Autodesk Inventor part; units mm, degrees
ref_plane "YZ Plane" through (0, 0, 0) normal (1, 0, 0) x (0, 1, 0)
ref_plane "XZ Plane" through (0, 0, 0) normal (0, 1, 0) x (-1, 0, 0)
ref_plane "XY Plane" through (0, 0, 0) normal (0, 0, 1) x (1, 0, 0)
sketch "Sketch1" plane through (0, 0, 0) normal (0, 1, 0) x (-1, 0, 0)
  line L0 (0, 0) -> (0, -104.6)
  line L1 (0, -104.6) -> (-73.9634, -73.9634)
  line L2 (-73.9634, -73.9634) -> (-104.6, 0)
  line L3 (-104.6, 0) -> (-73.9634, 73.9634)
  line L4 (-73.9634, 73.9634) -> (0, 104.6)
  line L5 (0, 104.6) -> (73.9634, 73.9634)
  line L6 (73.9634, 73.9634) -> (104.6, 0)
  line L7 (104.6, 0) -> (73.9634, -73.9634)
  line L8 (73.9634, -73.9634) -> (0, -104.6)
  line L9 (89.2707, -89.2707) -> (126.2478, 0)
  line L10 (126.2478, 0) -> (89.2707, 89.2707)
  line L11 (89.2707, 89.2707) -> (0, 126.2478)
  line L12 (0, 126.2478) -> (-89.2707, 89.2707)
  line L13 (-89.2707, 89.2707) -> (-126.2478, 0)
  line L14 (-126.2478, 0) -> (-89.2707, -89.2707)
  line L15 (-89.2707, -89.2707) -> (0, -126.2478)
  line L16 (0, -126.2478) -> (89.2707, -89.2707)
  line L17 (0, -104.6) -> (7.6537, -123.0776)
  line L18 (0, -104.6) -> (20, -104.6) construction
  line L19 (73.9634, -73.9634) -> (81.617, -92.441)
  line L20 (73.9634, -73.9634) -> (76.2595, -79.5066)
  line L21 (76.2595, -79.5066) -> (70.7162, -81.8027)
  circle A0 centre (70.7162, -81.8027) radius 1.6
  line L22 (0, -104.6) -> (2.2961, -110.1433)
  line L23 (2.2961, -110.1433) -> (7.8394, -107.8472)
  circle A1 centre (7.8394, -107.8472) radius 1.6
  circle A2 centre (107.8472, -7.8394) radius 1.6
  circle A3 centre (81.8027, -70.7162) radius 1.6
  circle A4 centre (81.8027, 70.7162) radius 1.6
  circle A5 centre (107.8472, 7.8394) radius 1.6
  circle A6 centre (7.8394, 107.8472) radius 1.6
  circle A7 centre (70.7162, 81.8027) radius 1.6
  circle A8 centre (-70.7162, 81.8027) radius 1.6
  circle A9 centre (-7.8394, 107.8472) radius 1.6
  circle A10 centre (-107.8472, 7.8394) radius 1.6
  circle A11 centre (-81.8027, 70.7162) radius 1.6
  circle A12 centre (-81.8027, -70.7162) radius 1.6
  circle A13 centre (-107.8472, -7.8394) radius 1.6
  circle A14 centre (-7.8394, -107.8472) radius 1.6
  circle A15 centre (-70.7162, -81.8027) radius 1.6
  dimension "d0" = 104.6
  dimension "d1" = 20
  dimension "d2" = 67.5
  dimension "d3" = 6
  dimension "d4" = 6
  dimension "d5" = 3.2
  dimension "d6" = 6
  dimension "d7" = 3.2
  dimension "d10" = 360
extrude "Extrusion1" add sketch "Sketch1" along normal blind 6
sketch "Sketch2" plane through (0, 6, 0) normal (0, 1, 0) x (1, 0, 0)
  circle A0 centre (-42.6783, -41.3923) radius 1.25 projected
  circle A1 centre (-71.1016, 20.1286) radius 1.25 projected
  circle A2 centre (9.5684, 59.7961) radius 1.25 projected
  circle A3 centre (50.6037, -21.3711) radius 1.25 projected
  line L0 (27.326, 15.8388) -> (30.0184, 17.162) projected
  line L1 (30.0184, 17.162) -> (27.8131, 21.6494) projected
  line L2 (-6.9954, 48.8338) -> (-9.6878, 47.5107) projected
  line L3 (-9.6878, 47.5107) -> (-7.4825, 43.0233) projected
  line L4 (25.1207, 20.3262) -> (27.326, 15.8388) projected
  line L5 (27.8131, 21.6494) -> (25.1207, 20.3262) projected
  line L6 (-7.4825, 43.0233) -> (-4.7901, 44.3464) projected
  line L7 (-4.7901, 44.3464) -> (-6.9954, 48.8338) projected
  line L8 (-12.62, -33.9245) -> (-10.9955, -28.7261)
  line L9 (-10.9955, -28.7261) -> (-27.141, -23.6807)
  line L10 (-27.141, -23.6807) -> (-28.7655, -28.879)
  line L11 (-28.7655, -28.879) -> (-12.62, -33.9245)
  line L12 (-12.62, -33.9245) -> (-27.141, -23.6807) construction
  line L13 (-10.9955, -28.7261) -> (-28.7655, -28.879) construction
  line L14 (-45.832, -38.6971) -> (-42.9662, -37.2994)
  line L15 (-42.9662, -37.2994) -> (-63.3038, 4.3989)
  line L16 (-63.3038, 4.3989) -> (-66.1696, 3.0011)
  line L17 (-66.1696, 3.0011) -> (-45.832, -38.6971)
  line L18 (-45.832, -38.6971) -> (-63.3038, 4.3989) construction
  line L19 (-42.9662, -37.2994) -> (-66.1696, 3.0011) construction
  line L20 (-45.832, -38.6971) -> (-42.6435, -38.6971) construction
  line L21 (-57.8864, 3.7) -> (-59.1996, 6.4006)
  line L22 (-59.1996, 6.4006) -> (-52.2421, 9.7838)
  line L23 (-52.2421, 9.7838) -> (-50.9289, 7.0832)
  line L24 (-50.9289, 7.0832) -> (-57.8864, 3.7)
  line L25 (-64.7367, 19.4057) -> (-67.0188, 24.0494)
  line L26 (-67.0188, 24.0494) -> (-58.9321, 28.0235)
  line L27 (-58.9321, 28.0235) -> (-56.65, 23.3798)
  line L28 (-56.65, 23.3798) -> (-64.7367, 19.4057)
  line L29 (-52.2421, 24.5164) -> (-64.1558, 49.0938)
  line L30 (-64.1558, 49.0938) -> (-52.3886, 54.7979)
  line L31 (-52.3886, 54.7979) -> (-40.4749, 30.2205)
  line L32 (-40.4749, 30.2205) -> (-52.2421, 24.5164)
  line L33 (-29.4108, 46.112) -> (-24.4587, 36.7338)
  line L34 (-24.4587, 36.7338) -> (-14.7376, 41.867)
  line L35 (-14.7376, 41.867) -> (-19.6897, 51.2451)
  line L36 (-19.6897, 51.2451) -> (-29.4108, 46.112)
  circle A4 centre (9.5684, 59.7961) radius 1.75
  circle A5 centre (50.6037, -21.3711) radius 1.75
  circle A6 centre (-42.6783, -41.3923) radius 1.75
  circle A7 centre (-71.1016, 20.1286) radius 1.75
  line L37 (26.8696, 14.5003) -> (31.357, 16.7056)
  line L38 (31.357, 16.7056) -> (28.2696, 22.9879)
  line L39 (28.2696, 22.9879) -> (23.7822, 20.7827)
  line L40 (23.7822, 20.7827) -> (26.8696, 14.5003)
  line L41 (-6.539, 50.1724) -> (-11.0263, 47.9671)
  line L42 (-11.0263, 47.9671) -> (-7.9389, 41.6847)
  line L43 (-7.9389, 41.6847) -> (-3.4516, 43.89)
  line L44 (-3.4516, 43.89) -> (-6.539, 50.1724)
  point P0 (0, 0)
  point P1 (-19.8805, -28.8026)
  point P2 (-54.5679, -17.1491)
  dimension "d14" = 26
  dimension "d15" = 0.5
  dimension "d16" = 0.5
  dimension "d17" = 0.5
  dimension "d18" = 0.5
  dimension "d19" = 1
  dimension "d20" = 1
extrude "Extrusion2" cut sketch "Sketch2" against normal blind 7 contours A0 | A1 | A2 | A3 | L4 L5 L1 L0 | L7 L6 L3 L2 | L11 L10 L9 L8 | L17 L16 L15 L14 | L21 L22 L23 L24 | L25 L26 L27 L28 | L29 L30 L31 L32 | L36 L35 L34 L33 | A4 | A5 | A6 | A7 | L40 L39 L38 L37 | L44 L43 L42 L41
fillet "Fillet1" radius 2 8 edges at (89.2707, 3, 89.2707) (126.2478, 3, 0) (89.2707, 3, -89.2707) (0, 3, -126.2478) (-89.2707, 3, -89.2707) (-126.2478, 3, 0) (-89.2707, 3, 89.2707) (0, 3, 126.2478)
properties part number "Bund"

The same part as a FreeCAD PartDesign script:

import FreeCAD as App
import Part
import Sketcher

V = App.Vector
Q = App.Units.Quantity


def edges_at(feature, points):
    """Names of the edges that pass closest to the given points."""
    edges = feature.Shape.Edges
    near = lambda p: min(range(len(edges)), key=lambda i: edges[i].distToShape(Part.Vertex(*p))[0])
    return sorted({f"Edge{near(p) + 1}" for p in points})


def add_polygon(sketch, points):
    """Adds a closed chain of lines whose ends are joined by coincident constraints."""
    first, n = sketch.GeometryCount, len(points)
    for a, b in zip(points, points[1:] + points[:1]):
        sketch.addGeometry(Part.LineSegment(App.Vector(*a, 0), App.Vector(*b, 0)), False)
    for i in range(n):
        sketch.addConstraint(Sketcher.Constraint("Coincident", first + i, 2, first + (i + 1) % n, 1))

doc = App.newDocument("Part")
body = doc.addObject("PartDesign::Body", "Body")

sketch1 = body.newObject("Sketcher::SketchObject", "Sketch")
sketch1.AttachmentSupport = (doc.getObject("XZ_Plane"), [""])
sketch1.MapMode = "FlatFace"
add_polygon(sketch1, [(0, -126.2), (-89.3, -89.3), (-126.2, 0), (-89.3, 89.3), (0, 126.2), (89.3, 89.3), (126.2, 0), (89.3, -89.3)])
sketch1.addGeometry(Part.Circle(V(70.7, -81.8, 0), V(0, 0, 1), 1.6), False)
sketch1.addGeometry(Part.Circle(V(81.8, -70.7, 0), V(0, 0, 1), 1.6), False)
sketch1.addGeometry(Part.Circle(V(7.8, -107.8, 0), V(0, 0, 1), 1.6), False)
sketch1.addGeometry(Part.Circle(V(107.8, -7.8, 0), V(0, 0, 1), 1.6), False)
sketch1.addGeometry(Part.Circle(V(-81.8, -70.7, 0), V(0, 0, 1), 1.6), False)
sketch1.addGeometry(Part.Circle(V(-107.8, -7.8, 0), V(0, 0, 1), 1.6), False)
sketch1.addGeometry(Part.Circle(V(107.8, 7.8, 0), V(0, 0, 1), 1.6), False)
sketch1.addGeometry(Part.Circle(V(81.8, 70.7, 0), V(0, 0, 1), 1.6), False)
sketch1.addGeometry(Part.Circle(V(70.7, 81.8, 0), V(0, 0, 1), 1.6), False)
sketch1.addGeometry(Part.Circle(V(7.8, 107.8, 0), V(0, 0, 1), 1.6), False)
sketch1.addGeometry(Part.Circle(V(-107.8, 7.8, 0), V(0, 0, 1), 1.6), False)
sketch1.addGeometry(Part.Circle(V(-7.8, 107.8, 0), V(0, 0, 1), 1.6), False)
sketch1.addGeometry(Part.Circle(V(-81.8, 70.7, 0), V(0, 0, 1), 1.6), False)
sketch1.addGeometry(Part.Circle(V(-70.7, 81.8, 0), V(0, 0, 1), 1.6), False)
sketch1.addGeometry(Part.Circle(V(-70.7, -81.8, 0), V(0, 0, 1), 1.6), False)
sketch1.addGeometry(Part.Circle(V(-7.8, -107.8, 0), V(0, 0, 1), 1.6), False)
sketch1.addConstraint(Sketcher.Constraint("Equal", 8, 9))
sketch1.addConstraint(Sketcher.Constraint("Equal", 9, 10))
sketch1.addConstraint(Sketcher.Constraint("Equal", 10, 11))
sketch1.addConstraint(Sketcher.Constraint("Equal", 11, 12))
sketch1.addConstraint(Sketcher.Constraint("Equal", 12, 13))
sketch1.addConstraint(Sketcher.Constraint("Equal", 13, 14))
sketch1.addConstraint(Sketcher.Constraint("Equal", 14, 15))
sketch1.addConstraint(Sketcher.Constraint("Equal", 15, 16))
sketch1.addConstraint(Sketcher.Constraint("Equal", 16, 17))
sketch1.addConstraint(Sketcher.Constraint("Equal", 17, 18))
sketch1.addConstraint(Sketcher.Constraint("Equal", 18, 19))
sketch1.addConstraint(Sketcher.Constraint("Equal", 19, 20))
sketch1.addConstraint(Sketcher.Constraint("Equal", 20, 21))
sketch1.addConstraint(Sketcher.Constraint("Equal", 21, 22))
sketch1.addConstraint(Sketcher.Constraint("Equal", 22, 23))
sketch1.addConstraint(Sketcher.Constraint("Symmetric", 13, 3, 14, 3, -1, 1))
sketch1.addConstraint(Sketcher.Constraint("Symmetric", 12, 3, 15, 3, -1, 1))
sketch1.addConstraint(Sketcher.Constraint("Symmetric", 11, 3, 18, 3, -1, 1))
sketch1.addConstraint(Sketcher.Constraint("Symmetric", 10, 3, 19, 3, -1, 1))
sketch1.addConstraint(Sketcher.Constraint("Symmetric", 9, 3, 20, 3, -1, 1))
sketch1.addConstraint(Sketcher.Constraint("Symmetric", 8, 3, 21, 3, -1, 1))
sketch1.addConstraint(Sketcher.Constraint("Symmetric", 16, 3, 22, 3, -1, 1))
sketch1.addConstraint(Sketcher.Constraint("Symmetric", 17, 3, 23, 3, -1, 1))
sketch1.addConstraint(Sketcher.Constraint("Symmetric", 0, 2, 4, 2, -1, 1))
sketch1.addConstraint(Sketcher.Constraint("Symmetric", 1, 2, 5, 2, -1, 1))
sketch1.addConstraint(Sketcher.Constraint("Symmetric", 2, 2, 6, 2, -1, 1))
sketch1.addConstraint(Sketcher.Constraint("Symmetric", 3, 2, 7, 2, -1, 1))
sketch1.addConstraint(Sketcher.Constraint("Symmetric", 9, 3, 12, 3, -2))
sketch1.addConstraint(Sketcher.Constraint("Symmetric", 11, 3, 13, 3, -2))
sketch1.addConstraint(Sketcher.Constraint("Symmetric", 17, 3, 19, 3, -2))
sketch1.addConstraint(Sketcher.Constraint("Symmetric", 16, 3, 21, 3, -2))
sketch1.addConstraint(Sketcher.Constraint("Symmetric", 2, 2, 4, 2, -2))
sketch1.addConstraint(Sketcher.Constraint("PointOnObject", 1, 2, -1))
sketch1.addConstraint(Sketcher.Constraint("PointOnObject", 3, 2, -2))
sketch1.addConstraint(Sketcher.Constraint("Perpendicular", 0, 2))
sketch1.addConstraint(Sketcher.Constraint("Equal", 0, 1))
sketch1.addConstraint(Sketcher.Constraint("Diameter", 8, Q("3.2 mm")))
sketch1.addConstraint(Sketcher.Constraint("Angle", 2, Q("67.5 deg")))
sketch1.addConstraint(Sketcher.Constraint("DistanceX", 12, 3, 11, 3, Q("189.65 mm")))
sketch1.addConstraint(Sketcher.Constraint("DistanceX", 0, 2, 10, 3, Q("97.11 mm")))
sketch1.addConstraint(Sketcher.Constraint("Distance", 0, Q("96.626 mm")))
sketch1.addConstraint(Sketcher.Constraint("DistanceY", 10, 3, 9, 3, Q("37.131 mm")))
sketch1.addConstraint(Sketcher.Constraint("DistanceX", 8, 3, 11, 3, Q("37.131 mm")))
sketch1.addConstraint(Sketcher.Constraint("DistanceX", 12, 3, 10, 3, Q("89.642 mm")))
sketch1.addConstraint(Sketcher.Constraint("DistanceY", 8, 3, 14, 3, Q("89.642 mm")))
sketch1.addConstraint(Sketcher.Constraint("DistanceY", 8, 3, 15, 3, Q("152.519 mm")))
sketch1.addConstraint(Sketcher.Constraint("DistanceY", 0, 2, 22, 3, Q("7.468 mm")))
pad1 = body.newObject("PartDesign::Pad", "Pad")
pad1.Profile = sketch1
pad1.Length = 6
pad1.Reversed = True

sketch2 = body.newObject("Sketcher::SketchObject", "Sketch001")
sketch2.AttachmentSupport = (doc.getObject("XZ_Plane"), [""])
sketch2.MapMode = "FlatFace"
sketch2.AttachmentOffset = App.Placement(V(0, 0, -6), App.Rotation())
sketch2.addGeometry(Part.Circle(V(-42.7, 41.4, 0), V(0, 0, 1), 1.8), False)
sketch2.addGeometry(Part.Circle(V(-71.1, -20.1, 0), V(0, 0, 1), 1.8), False)
sketch2.addGeometry(Part.Circle(V(9.6, -59.8, 0), V(0, 0, 1), 1.8), False)
sketch2.addGeometry(Part.Circle(V(50.6, 21.4, 0), V(0, 0, 1), 1.8), False)
add_polygon(sketch2, [(23.8, -20.8), (26.9, -14.5), (31.4, -16.7), (28.3, -23)])
add_polygon(sketch2, [(-3.5, -43.9), (-6.5, -50.2), (-11, -48), (-7.9, -41.7)])
add_polygon(sketch2, [(-28.8, 28.9), (-12.6, 33.9), (-11, 28.7), (-27.1, 23.7)])
add_polygon(sketch2, [(-66.2, -3), (-45.8, 38.7), (-43, 37.3), (-63.3, -4.4)])
add_polygon(sketch2, [(-59.2, -6.4), (-57.9, -3.7), (-50.9, -7.1), (-52.2, -9.8)])
add_polygon(sketch2, [(-67, -24), (-64.7, -19.4), (-56.6, -23.4), (-58.9, -28)])
add_polygon(sketch2, [(-64.2, -49.1), (-52.2, -24.5), (-40.5, -30.2), (-52.4, -54.8)])
add_polygon(sketch2, [(-19.7, -51.2), (-29.4, -46.1), (-24.5, -36.7), (-14.7, -41.9)])
sketch2.addConstraint(Sketcher.Constraint("Equal", 0, 1))
sketch2.addConstraint(Sketcher.Constraint("Equal", 1, 2))
sketch2.addConstraint(Sketcher.Constraint("Equal", 2, 3))
sketch2.addConstraint(Sketcher.Constraint("Perpendicular", 4, 5))
sketch2.addConstraint(Sketcher.Constraint("Perpendicular", 5, 6))
sketch2.addConstraint(Sketcher.Constraint("Perpendicular", 6, 7))
sketch2.addConstraint(Sketcher.Constraint("Perpendicular", 7, 8))
sketch2.addConstraint(Sketcher.Constraint("Perpendicular", 8, 9))
sketch2.addConstraint(Sketcher.Constraint("Perpendicular", 9, 10))
sketch2.addConstraint(Sketcher.Constraint("Perpendicular", 10, 11))
sketch2.addConstraint(Sketcher.Constraint("Perpendicular", 12, 13))
sketch2.addConstraint(Sketcher.Constraint("Perpendicular", 13, 14))
sketch2.addConstraint(Sketcher.Constraint("Perpendicular", 14, 15))
sketch2.addConstraint(Sketcher.Constraint("Perpendicular", 16, 17))
sketch2.addConstraint(Sketcher.Constraint("Perpendicular", 17, 18))
sketch2.addConstraint(Sketcher.Constraint("Perpendicular", 18, 19))
sketch2.addConstraint(Sketcher.Constraint("Perpendicular", 20, 21))
sketch2.addConstraint(Sketcher.Constraint("Perpendicular", 21, 22))
sketch2.addConstraint(Sketcher.Constraint("Perpendicular", 22, 23))
sketch2.addConstraint(Sketcher.Constraint("Perpendicular", 11, 24))
sketch2.addConstraint(Sketcher.Constraint("Perpendicular", 24, 25))
sketch2.addConstraint(Sketcher.Constraint("Perpendicular", 25, 26))
sketch2.addConstraint(Sketcher.Constraint("Perpendicular", 26, 27))
sketch2.addConstraint(Sketcher.Constraint("Perpendicular", 28, 29))
sketch2.addConstraint(Sketcher.Constraint("Perpendicular", 29, 30))
sketch2.addConstraint(Sketcher.Constraint("Perpendicular", 30, 31))
sketch2.addConstraint(Sketcher.Constraint("Perpendicular", 32, 33))
sketch2.addConstraint(Sketcher.Constraint("Perpendicular", 33, 34))
sketch2.addConstraint(Sketcher.Constraint("Perpendicular", 34, 35))
sketch2.addConstraint(Sketcher.Constraint("Vertical", 22, 2, 28, 2))
sketch2.addConstraint(Sketcher.Constraint("Equal", 6, 8))
sketch2.addConstraint(Sketcher.Constraint("Equal", 7, 9))
sketch2.addConstraint(Sketcher.Constraint("Diameter", 0, Q("3.5 mm")))
sketch2.addConstraint(Sketcher.Constraint("Angle", 16, Q("64 deg")))
sketch2.addConstraint(Sketcher.Constraint("Distance", 4, Q("7 mm")))
sketch2.addConstraint(Sketcher.Constraint("Distance", 5, Q("5 mm")))
sketch2.addConstraint(Sketcher.Constraint("DistanceY", 20, 2, -1, 1, Q("3.7 mm")))
sketch2.addConstraint(Sketcher.Constraint("Angle", 4, Q("63.8288 deg")))
sketch2.addConstraint(Sketcher.Constraint("DistanceY", 9, 2, 34, 2, Q("6.1 mm")))
sketch2.addConstraint(Sketcher.Constraint("DistanceY", 11, 2, -1, 1, Q("43.89 mm")))
sketch2.addConstraint(Sketcher.Constraint("DistanceX", 12, 2, -1, 1, Q("12.62 mm")))
sketch2.addConstraint(Sketcher.Constraint("DistanceX", 25, 2, -1, 1, Q("56.65 mm")))
sketch2.addConstraint(Sketcher.Constraint("DistanceX", 1, 3, 2, 3, Q("80.67 mm")))
sketch2.addConstraint(Sketcher.Constraint("DistanceX", 11, 2, 2, 3, Q("13.02 mm")))
sketch2.addConstraint(Sketcher.Constraint("DistanceY", 5, 2, 12, 2, Q("50.63 mm")))
sketch2.addConstraint(Sketcher.Constraint("DistanceX", 15, 2, 13, 2, Q("17.77 mm")))
sketch2.addConstraint(Sketcher.Constraint("DistanceX", 19, 2, 23, 2, Q("6.97 mm")))
sketch2.addConstraint(Sketcher.Constraint("DistanceX", 26, 2, 22, 2, Q("6.69 mm")))
sketch2.addConstraint(Sketcher.Constraint("Distance", 20, Q("3.003 mm")))
sketch2.addConstraint(Sketcher.Constraint("Distance", 32, Q("10.993 mm")))
sketch2.addConstraint(Sketcher.Constraint("DistanceY", 2, 3, -1, 1, Q("59.796 mm")))
sketch2.addConstraint(Sketcher.Constraint("DistanceY", -1, 1, 3, 3, Q("21.371 mm")))
sketch2.addConstraint(Sketcher.Constraint("DistanceX", -1, 1, 5, 2, Q("31.357 mm")))
sketch2.addConstraint(Sketcher.Constraint("DistanceY", 6, 2, -1, 1, Q("22.988 mm")))
sketch2.addConstraint(Sketcher.Constraint("DistanceX", 8, 2, -1, 1, Q("6.539 mm")))
sketch2.addConstraint(Sketcher.Constraint("DistanceY", -1, 1, 13, 2, Q("28.726 mm")))
sketch2.addConstraint(Sketcher.Constraint("DistanceX", 14, 2, -1, 1, Q("27.141 mm")))
sketch2.addConstraint(Sketcher.Constraint("DistanceX", 16, 2, -1, 1, Q("45.832 mm")))
sketch2.addConstraint(Sketcher.Constraint("DistanceY", -1, 1, 16, 2, Q("38.697 mm")))
sketch2.addConstraint(Sketcher.Constraint("DistanceY", 18, 2, -1, 1, Q("4.399 mm")))
sketch2.addConstraint(Sketcher.Constraint("DistanceY", 19, 2, -1, 1, Q("3.001 mm")))
sketch2.addConstraint(Sketcher.Constraint("DistanceX", 21, 2, -1, 1, Q("50.929 mm")))
sketch2.addConstraint(Sketcher.Constraint("DistanceX", 22, 2, -1, 1, Q("52.242 mm")))
sketch2.addConstraint(Sketcher.Constraint("DistanceX", 29, 2, -1, 1, Q("40.475 mm")))
sketch2.addConstraint(Sketcher.Constraint("DistanceY", 30, 2, -1, 1, Q("54.798 mm")))
sketch2.addConstraint(Sketcher.Constraint("DistanceY", 32, 2, -1, 1, Q("46.112 mm")))
sketch2.addConstraint(Sketcher.Constraint("DistanceY", 35, 2, -1, 1, Q("51.245 mm")))
sketch2.addConstraint(Sketcher.Constraint("DistanceY", 1, 3, 0, 3, Q("61.521 mm")))
sketch2.addConstraint(Sketcher.Constraint("DistanceX", 0, 3, 3, 3, Q("93.282 mm")))
sketch2.addConstraint(Sketcher.Constraint("DistanceX", 4, 2, 3, 3, Q("23.734 mm")))
sketch2.addConstraint(Sketcher.Constraint("DistanceY", 5, 2, 0, 3, Q("58.098 mm")))
sketch2.addConstraint(Sketcher.Constraint("DistanceX", 1, 3, 24, 2, Q("6.365 mm")))
sketch2.addConstraint(Sketcher.Constraint("DistanceY", 1, 3, 24, 2, Q("0.723 mm")))
sketch2.addConstraint(Sketcher.Constraint("DistanceY", 26, 2, 28, 2, Q("3.507 mm")))
sketch2.addConstraint(Sketcher.Constraint("DistanceY", 29, 2, 28, 2, Q("5.704 mm")))
sketch2.addConstraint(Sketcher.Constraint("DistanceX", 29, 2, 32, 2, Q("11.064 mm")))
pocket1 = body.newObject("PartDesign::Pocket", "Pocket")
pocket1.Profile = sketch2
pocket1.Length = 7
pocket1.Reversed = True
doc.recompute()

fillet = body.newObject("PartDesign::Fillet", "Fillet")
fillet.Base = (pocket1, edges_at(pocket1, [
    (89.271, 3, 89.271),
    (126.248, 3, 0),
    (89.271, 3, -89.271),
    (0, 3, -126.248),
    (-89.271, 3, -89.271),
    (-126.248, 3, 0),
    (-89.271, 3, 89.271),
    (0, 3, 126.248),
]))
fillet.Radius = 2

doc.recompute()
